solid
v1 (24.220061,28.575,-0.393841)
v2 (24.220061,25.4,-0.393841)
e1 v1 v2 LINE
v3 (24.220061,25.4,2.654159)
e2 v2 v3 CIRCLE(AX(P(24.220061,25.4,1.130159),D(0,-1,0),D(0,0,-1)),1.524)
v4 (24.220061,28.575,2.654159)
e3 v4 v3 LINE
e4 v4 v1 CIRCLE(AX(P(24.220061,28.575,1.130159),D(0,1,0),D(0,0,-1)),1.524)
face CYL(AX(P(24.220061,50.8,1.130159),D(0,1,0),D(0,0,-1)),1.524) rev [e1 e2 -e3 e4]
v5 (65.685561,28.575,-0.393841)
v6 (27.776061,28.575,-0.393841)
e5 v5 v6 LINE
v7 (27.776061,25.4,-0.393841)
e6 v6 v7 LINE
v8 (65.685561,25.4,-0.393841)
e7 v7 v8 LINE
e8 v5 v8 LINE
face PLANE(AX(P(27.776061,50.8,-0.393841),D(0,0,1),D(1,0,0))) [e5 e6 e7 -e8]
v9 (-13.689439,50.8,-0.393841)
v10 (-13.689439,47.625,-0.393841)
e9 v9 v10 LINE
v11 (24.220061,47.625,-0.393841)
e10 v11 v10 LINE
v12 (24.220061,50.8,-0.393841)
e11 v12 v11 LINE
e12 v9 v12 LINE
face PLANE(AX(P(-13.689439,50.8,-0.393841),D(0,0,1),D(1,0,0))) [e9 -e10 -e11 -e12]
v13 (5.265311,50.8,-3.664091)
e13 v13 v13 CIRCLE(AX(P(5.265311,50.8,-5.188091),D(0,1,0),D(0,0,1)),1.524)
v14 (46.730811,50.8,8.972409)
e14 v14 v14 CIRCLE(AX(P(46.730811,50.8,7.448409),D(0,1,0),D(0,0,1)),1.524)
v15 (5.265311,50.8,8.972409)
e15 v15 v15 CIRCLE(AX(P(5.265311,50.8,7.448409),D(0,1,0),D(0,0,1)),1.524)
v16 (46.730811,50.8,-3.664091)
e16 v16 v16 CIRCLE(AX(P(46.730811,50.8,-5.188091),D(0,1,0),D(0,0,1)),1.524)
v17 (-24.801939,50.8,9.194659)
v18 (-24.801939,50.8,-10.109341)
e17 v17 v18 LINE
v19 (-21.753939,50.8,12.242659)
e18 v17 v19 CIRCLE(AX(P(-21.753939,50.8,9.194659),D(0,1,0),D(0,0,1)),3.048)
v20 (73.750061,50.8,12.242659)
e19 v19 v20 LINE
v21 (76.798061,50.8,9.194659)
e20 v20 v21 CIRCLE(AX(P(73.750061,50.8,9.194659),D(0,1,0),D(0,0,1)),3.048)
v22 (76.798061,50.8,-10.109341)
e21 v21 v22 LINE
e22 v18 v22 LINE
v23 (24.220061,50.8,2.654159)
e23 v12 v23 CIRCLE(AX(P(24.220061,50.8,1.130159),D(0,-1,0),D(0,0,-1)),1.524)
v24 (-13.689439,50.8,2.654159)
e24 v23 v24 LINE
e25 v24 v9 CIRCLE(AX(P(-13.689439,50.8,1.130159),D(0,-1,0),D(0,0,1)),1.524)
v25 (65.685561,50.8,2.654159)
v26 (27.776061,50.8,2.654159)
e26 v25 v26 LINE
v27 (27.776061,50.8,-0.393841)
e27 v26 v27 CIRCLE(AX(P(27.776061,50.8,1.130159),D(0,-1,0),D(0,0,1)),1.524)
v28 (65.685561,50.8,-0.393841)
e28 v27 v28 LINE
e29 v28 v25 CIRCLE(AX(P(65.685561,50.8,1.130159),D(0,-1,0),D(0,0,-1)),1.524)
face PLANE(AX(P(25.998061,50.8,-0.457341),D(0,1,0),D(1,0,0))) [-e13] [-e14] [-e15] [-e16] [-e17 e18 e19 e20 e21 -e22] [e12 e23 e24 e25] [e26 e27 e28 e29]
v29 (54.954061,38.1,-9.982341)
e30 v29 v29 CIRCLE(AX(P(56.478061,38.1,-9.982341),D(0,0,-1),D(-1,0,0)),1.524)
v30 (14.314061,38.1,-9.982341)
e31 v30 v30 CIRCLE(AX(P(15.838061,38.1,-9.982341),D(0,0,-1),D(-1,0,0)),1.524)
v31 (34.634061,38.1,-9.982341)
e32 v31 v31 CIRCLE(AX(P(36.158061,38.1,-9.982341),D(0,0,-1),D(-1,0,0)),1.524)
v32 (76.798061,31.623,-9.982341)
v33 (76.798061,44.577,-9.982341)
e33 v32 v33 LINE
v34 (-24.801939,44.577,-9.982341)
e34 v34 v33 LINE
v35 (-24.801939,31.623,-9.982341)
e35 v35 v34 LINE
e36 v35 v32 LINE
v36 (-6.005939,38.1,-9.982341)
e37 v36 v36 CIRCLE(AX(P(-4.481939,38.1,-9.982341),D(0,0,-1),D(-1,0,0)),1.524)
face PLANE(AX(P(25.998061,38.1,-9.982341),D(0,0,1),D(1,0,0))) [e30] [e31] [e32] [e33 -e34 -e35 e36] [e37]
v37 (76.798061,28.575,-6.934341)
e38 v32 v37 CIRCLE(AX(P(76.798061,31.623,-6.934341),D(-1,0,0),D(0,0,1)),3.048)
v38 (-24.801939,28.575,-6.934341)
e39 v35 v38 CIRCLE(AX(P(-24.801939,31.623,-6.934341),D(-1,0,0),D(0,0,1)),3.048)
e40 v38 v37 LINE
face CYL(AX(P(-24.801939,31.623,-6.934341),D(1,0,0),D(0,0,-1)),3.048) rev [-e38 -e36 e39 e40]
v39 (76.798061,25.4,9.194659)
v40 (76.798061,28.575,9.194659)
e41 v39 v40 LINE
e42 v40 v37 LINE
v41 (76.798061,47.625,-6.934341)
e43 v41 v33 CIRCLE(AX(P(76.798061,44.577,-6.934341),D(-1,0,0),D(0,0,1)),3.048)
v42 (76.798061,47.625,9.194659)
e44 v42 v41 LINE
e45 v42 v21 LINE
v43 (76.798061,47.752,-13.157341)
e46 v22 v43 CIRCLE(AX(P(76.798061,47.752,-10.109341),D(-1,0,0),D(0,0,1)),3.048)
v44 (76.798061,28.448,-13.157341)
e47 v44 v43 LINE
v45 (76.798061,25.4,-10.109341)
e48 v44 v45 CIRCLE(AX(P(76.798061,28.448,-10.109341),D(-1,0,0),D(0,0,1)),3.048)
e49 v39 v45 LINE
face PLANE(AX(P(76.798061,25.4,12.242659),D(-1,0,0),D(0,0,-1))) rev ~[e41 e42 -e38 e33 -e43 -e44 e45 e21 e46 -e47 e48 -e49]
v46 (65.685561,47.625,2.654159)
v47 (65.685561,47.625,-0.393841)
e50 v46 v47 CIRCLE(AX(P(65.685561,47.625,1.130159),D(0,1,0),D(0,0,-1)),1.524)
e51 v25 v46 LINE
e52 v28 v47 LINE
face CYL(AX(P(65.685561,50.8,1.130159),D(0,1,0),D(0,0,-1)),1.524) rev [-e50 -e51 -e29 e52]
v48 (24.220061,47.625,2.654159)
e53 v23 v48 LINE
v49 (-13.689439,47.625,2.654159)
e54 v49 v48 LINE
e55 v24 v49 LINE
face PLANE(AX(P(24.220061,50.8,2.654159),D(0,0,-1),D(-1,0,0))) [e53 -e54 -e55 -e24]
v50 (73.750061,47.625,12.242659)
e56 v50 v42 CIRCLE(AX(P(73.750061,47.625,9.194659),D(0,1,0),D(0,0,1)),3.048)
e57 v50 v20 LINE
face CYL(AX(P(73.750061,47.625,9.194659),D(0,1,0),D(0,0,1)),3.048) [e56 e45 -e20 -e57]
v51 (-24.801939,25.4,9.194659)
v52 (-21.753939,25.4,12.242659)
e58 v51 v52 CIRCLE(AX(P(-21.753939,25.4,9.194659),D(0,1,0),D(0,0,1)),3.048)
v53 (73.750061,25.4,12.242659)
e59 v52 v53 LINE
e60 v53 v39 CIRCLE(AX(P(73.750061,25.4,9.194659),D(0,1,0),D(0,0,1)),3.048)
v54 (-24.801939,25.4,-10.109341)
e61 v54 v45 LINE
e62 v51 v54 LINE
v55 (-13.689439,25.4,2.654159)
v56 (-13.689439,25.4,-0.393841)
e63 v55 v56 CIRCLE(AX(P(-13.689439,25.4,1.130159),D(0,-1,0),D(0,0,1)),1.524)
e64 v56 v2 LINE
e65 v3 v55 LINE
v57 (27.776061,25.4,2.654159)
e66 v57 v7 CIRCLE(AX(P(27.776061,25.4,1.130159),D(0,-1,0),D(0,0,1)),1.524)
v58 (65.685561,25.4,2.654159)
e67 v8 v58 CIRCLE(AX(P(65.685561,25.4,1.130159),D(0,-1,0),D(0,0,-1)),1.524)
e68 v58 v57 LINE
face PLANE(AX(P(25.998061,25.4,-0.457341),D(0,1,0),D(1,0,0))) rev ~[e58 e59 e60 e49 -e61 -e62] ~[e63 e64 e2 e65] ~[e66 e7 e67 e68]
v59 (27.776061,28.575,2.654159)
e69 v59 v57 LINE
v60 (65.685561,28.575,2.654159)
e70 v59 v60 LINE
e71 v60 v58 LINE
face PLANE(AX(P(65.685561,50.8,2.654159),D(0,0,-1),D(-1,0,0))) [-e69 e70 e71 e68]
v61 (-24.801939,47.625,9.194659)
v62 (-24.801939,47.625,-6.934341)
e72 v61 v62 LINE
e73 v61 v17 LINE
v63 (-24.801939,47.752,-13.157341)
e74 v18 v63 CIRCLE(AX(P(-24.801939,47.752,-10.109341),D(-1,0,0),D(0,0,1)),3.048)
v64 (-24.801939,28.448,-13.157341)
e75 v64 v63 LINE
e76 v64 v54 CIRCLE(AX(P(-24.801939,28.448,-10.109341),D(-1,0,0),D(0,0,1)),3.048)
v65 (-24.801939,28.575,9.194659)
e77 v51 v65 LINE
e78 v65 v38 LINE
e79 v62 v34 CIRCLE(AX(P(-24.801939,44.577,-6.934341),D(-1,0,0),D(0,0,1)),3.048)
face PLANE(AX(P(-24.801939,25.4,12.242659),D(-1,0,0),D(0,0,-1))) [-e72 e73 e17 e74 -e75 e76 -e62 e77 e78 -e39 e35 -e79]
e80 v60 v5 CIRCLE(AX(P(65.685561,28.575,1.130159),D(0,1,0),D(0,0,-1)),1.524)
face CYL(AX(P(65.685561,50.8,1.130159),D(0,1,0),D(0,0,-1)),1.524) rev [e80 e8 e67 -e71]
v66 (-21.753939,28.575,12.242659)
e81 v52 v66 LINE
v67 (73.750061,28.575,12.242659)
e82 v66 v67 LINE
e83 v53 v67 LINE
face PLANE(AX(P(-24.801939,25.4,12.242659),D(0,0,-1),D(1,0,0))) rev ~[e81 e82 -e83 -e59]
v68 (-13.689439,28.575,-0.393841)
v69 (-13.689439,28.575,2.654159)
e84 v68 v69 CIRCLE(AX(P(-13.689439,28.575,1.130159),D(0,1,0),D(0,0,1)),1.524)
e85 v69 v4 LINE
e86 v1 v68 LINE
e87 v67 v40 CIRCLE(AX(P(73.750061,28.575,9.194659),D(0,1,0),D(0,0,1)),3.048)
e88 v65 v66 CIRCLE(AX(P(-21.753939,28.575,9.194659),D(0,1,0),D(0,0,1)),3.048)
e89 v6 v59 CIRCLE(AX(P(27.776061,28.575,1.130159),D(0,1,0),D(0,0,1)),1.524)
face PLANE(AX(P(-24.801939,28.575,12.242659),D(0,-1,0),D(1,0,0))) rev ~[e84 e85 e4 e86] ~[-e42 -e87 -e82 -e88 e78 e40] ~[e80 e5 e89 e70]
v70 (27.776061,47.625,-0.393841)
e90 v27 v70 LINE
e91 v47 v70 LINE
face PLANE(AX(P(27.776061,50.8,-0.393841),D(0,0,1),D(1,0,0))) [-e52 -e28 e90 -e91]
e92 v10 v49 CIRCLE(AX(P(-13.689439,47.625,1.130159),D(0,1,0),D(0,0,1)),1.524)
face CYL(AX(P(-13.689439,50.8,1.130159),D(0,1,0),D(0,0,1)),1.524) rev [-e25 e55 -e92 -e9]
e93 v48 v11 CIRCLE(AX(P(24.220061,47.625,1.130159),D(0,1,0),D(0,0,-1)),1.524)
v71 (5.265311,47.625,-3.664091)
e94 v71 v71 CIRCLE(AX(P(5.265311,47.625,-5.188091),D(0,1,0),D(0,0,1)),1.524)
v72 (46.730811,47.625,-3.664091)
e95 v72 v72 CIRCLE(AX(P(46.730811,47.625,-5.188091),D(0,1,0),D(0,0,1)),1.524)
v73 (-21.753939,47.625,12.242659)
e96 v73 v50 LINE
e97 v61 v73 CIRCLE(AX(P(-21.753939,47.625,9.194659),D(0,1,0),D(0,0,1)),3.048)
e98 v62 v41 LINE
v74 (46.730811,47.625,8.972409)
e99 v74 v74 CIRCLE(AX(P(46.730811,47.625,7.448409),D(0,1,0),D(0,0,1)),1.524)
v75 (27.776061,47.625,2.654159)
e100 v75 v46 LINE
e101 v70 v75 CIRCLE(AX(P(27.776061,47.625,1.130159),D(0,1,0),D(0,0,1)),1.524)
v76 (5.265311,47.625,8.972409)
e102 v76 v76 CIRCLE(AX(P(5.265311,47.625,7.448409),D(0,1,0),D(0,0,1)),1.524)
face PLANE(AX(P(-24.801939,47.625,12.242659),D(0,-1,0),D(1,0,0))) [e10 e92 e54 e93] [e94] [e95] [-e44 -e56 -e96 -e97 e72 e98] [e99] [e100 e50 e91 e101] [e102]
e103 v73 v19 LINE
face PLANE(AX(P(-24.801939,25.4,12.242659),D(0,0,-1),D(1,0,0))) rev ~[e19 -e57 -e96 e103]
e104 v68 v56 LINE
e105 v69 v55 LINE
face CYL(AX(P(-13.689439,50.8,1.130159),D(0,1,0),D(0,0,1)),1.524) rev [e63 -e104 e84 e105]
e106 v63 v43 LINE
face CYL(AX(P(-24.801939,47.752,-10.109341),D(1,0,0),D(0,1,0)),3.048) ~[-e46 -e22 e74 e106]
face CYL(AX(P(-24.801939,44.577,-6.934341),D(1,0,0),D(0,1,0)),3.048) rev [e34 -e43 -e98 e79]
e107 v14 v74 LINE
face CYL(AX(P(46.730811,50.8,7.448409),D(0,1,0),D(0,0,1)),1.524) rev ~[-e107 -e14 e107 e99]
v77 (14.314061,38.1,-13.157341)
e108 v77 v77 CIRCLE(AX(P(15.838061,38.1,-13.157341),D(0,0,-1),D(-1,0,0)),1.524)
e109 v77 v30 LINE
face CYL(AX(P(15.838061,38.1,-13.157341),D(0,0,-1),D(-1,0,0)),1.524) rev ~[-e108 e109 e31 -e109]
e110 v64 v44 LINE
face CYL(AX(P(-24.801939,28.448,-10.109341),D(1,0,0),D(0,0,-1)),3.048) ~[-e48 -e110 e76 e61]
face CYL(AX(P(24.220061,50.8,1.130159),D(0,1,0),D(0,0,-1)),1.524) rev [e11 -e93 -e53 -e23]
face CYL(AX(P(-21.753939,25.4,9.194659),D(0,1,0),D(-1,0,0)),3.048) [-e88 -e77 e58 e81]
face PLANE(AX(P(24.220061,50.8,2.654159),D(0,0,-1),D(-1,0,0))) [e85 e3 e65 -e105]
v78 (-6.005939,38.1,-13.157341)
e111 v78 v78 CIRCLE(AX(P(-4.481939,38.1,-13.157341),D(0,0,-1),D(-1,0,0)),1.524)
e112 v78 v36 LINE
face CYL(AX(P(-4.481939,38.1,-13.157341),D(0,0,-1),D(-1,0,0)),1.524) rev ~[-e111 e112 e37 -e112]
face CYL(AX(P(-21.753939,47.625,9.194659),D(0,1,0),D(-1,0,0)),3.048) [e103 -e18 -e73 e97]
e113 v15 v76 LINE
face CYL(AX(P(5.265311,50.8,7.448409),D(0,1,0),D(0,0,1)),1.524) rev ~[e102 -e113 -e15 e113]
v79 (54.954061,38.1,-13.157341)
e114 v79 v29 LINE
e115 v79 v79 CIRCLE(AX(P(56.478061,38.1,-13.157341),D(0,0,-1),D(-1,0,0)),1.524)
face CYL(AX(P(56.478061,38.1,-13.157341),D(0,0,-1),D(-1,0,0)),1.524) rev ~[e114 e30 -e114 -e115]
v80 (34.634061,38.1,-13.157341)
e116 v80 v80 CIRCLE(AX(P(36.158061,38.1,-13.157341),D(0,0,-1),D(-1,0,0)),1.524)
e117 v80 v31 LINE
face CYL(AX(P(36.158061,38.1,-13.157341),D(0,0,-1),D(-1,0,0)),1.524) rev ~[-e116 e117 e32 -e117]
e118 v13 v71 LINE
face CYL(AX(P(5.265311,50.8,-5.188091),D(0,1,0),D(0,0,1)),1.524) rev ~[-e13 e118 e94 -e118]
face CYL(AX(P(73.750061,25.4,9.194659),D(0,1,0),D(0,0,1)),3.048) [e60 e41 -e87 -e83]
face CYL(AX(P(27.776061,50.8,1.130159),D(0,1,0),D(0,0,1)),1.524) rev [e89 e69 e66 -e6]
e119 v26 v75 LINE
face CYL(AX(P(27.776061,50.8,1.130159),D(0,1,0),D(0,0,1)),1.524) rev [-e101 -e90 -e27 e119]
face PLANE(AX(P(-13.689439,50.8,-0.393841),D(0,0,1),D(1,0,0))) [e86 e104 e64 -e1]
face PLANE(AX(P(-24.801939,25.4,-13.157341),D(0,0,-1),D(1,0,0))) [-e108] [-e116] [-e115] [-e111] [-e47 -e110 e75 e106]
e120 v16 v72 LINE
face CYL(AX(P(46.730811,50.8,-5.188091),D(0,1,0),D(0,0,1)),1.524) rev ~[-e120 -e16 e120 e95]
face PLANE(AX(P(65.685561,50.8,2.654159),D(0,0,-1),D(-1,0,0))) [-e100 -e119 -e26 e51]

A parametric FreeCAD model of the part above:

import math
import FreeCAD as App
import Part
import Sketcher

V = App.Vector
Q = App.Units.Quantity


def edges_at(feature, points):
    """Names of the edges that pass closest to the given points."""
    edges = feature.Shape.Edges
    near = lambda p: min(range(len(edges)), key=lambda i: edges[i].distToShape(Part.Vertex(*p))[0])
    return sorted({f"Edge{near(p) + 1}" for p in points})

doc = App.newDocument("Part")
body = doc.addObject("PartDesign::Body", "Body")

# Sketch on XZ plane
sketch1 = body.newObject("Sketcher::SketchObject", "Sketch")
sketch1.AttachmentSupport = (doc.getObject("XZ_Plane"), [""])
sketch1.MapMode = "FlatFace"
sketch1.AttachmentOffset = App.Placement(V(0, 0, -1 * 25.4), App.Rotation())
sketch1.addGeometry(Part.LineSegment(V(-24.801939, -13.157341, 0), V(-24.801939, 12.242659, 0)), False)
sketch1.addGeometry(Part.LineSegment(V(-24.801939, 12.242659, 0), V(76.798061, 12.242659, 0)), False)
sketch1.addGeometry(Part.LineSegment(V(76.798061, 12.242659, 0), V(76.798061, -13.157341, 0)), False)
sketch1.addGeometry(Part.LineSegment(V(76.798061, -13.157341, 0), V(-24.801939, -13.157341, 0)), False)
sketch1.addConstraint(Sketcher.Constraint("Coincident", 0, 2, 1, 1))
sketch1.addConstraint(Sketcher.Constraint("Coincident", 1, 2, 2, 1))
sketch1.addConstraint(Sketcher.Constraint("Coincident", 2, 2, 3, 1))
sketch1.addConstraint(Sketcher.Constraint("Coincident", 3, 2, 0, 1))
sketch1.addConstraint(Sketcher.Constraint("Vertical", 0))
sketch1.addConstraint(Sketcher.Constraint("Horizontal", 1))
sketch1.addConstraint(Sketcher.Constraint("Vertical", 2))
sketch1.addConstraint(Sketcher.Constraint("Horizontal", 3))
sketch1.addConstraint(Sketcher.Constraint("DistanceX", 1, 1, 1, 2, Q("4 in")))
sketch1.addConstraint(Sketcher.Constraint("DistanceY", 0, 1, 0, 2, Q("1 in")))
sketch1.addConstraint(Sketcher.Constraint("DistanceX", 0, 2, -1, 1, 24.801939))
sketch1.addConstraint(Sketcher.Constraint("DistanceY", -1, 1, 0, 2, 12.242659))
pad1 = body.newObject("PartDesign::Pad", "Pad")
pad1.Profile = sketch1
pad1.Length = Q("1 in")
pad1.Reversed = True

# Sketch on XY plane
sketch2 = body.newObject("Sketcher::SketchObject", "Sketch001")
sketch2.AttachmentSupport = (doc.getObject("XY_Plane"), [""])
sketch2.MapMode = "FlatFace"
sketch2.AttachmentOffset = App.Placement(V(0, 0, 12.242659), App.Rotation())
sketch2.addGeometry(Part.LineSegment(V(-24.801939, 47.625, 0), V(-24.801939, 28.575, 0)), False)
sketch2.addGeometry(Part.LineSegment(V(-24.801939, 28.575, 0), V(76.798061, 28.575, 0)), False)
sketch2.addGeometry(Part.LineSegment(V(76.798061, 28.575, 0), V(76.798061, 47.625, 0)), False)
sketch2.addGeometry(Part.LineSegment(V(76.798061, 47.625, 0), V(-24.801939, 47.625, 0)), False)
sketch2.addConstraint(Sketcher.Constraint("Coincident", 0, 2, 1, 1))
sketch2.addConstraint(Sketcher.Constraint("Coincident", 1, 2, 2, 1))
sketch2.addConstraint(Sketcher.Constraint("Coincident", 2, 2, 3, 1))
sketch2.addConstraint(Sketcher.Constraint("Coincident", 3, 2, 0, 1))
sketch2.addConstraint(Sketcher.Constraint("Vertical", 0))
sketch2.addConstraint(Sketcher.Constraint("Horizontal", 1))
sketch2.addConstraint(Sketcher.Constraint("Vertical", 2))
sketch2.addConstraint(Sketcher.Constraint("Horizontal", 3))
sketch2.addConstraint(Sketcher.Constraint("DistanceX", 1, 1, 1, 2, Q("4 in")))
sketch2.addConstraint(Sketcher.Constraint("DistanceY", 0, 2, 0, 1, Q("0.75 in")))
sketch2.addConstraint(Sketcher.Constraint("DistanceY", -1, 1, 0, 2, Q("1.125 in")))
sketch2.addConstraint(Sketcher.Constraint("DistanceX", 0, 2, -1, 1, 24.801939))
pocket1 = body.newObject("PartDesign::Pocket", "Pocket")
pocket1.Profile = sketch2
pocket1.Length = Q("0.875 in")

# Sketch on XZ plane
sketch3 = body.newObject("Sketcher::SketchObject", "Sketch002")
sketch3.AttachmentSupport = (doc.getObject("XZ_Plane"), [""])
sketch3.MapMode = "FlatFace"
sketch3.AttachmentOffset = App.Placement(V(0, 0, -2 * 25.4), App.Rotation())
sketch3.addGeometry(Part.LineSegment(V(24.220061, -0.393841, 0), V(-13.689439, -0.393841, 0)), False)
sketch3.addGeometry(Part.ArcOfCircle(Part.Circle(V(-13.689439, 1.130159, 0), V(0, 0, 1), 1.524), math.radians(90), math.radians(270)), False)
sketch3.addGeometry(Part.LineSegment(V(-13.689439, 2.654159, 0), V(24.220061, 2.654159, 0)), False)
sketch3.addGeometry(Part.ArcOfCircle(Part.Circle(V(24.220061, 1.130159, 0), V(0, 0, 1), 1.524), math.radians(-90), math.radians(90)), False)
sketch3.addConstraint(Sketcher.Constraint("Tangent", 0, 2, 1, 2))
sketch3.addConstraint(Sketcher.Constraint("Tangent", 1, 1, 2, 1))
sketch3.addConstraint(Sketcher.Constraint("Tangent", 2, 2, 3, 2))
sketch3.addConstraint(Sketcher.Constraint("Tangent", 3, 1, 0, 1))
sketch3.addConstraint(Sketcher.Constraint("Horizontal", 0))
sketch3.addConstraint(Sketcher.Constraint("Horizontal", 2))
sketch3.addConstraint(Sketcher.Constraint("Radius", 1, Q("0.06 in")))
sketch3.addConstraint(Sketcher.Constraint("DistanceX", 0, 2, 0, 1, Q("1.4925 in")))
sketch3.addConstraint(Sketcher.Constraint("DistanceX", 1, 3, -1, 1, 13.689439))
sketch3.addConstraint(Sketcher.Constraint("DistanceY", -1, 1, 1, 3, 1.130159))
pocket2 = body.newObject("PartDesign::Pocket", "Pocket001")
pocket2.Profile = sketch3
pocket2.Length = Q("1 in")
pocket2.Reversed = True

# Sketch on XZ plane
sketch4 = body.newObject("Sketcher::SketchObject", "Sketch003")
sketch4.AttachmentSupport = (doc.getObject("XZ_Plane"), [""])
sketch4.MapMode = "FlatFace"
sketch4.AttachmentOffset = App.Placement(V(0, 0, -2 * 25.4), App.Rotation())
sketch4.addGeometry(Part.LineSegment(V(65.685561, -0.393841, 0), V(27.776061, -0.393841, 0)), False)
sketch4.addGeometry(Part.ArcOfCircle(Part.Circle(V(27.776061, 1.130159, 0), V(0, 0, 1), 1.524), math.radians(90), math.radians(270)), False)
sketch4.addGeometry(Part.LineSegment(V(27.776061, 2.654159, 0), V(65.685561, 2.654159, 0)), False)
sketch4.addGeometry(Part.ArcOfCircle(Part.Circle(V(65.685561, 1.130159, 0), V(0, 0, 1), 1.524), math.radians(-90), math.radians(90)), False)
sketch4.addConstraint(Sketcher.Constraint("Tangent", 0, 2, 1, 2))
sketch4.addConstraint(Sketcher.Constraint("Tangent", 1, 1, 2, 1))
sketch4.addConstraint(Sketcher.Constraint("Tangent", 2, 2, 3, 2))
sketch4.addConstraint(Sketcher.Constraint("Tangent", 3, 1, 0, 1))
sketch4.addConstraint(Sketcher.Constraint("Horizontal", 0))
sketch4.addConstraint(Sketcher.Constraint("Horizontal", 2))
sketch4.addConstraint(Sketcher.Constraint("Radius", 1, Q("0.06 in")))
sketch4.addConstraint(Sketcher.Constraint("DistanceX", 0, 2, 0, 1, Q("1.4925 in")))
sketch4.addConstraint(Sketcher.Constraint("DistanceX", -1, 1, 1, 3, 27.776061))
sketch4.addConstraint(Sketcher.Constraint("DistanceY", -1, 1, 1, 3, 1.130159))
pocket3 = body.newObject("PartDesign::Pocket", "Pocket002")
pocket3.Profile = sketch4
pocket3.Length = Q("1 in")
pocket3.Reversed = True

# Sketch on XZ plane
sketch5 = body.newObject("Sketcher::SketchObject", "Sketch004")
sketch5.AttachmentSupport = (doc.getObject("XZ_Plane"), [""])
sketch5.MapMode = "FlatFace"
sketch5.AttachmentOffset = App.Placement(V(0, 0, -2 * 25.4), App.Rotation())
sketch5.addGeometry(Part.Circle(V(5.265311, 7.448409, 0), V(0, 0, 1), 1.524), False)
sketch5.addGeometry(Part.Circle(V(5.265311, -5.188091, 0), V(0, 0, 1), 1.524), False)
sketch5.addGeometry(Part.Circle(V(46.730811, -5.188091, 0), V(0, 0, 1), 1.524), False)
sketch5.addGeometry(Part.Circle(V(46.730811, 7.448409, 0), V(0, 0, 1), 1.524), False)
sketch5.addConstraint(Sketcher.Constraint("Equal", 0, 1))
sketch5.addConstraint(Sketcher.Constraint("Equal", 1, 2))
sketch5.addConstraint(Sketcher.Constraint("Equal", 2, 3))
sketch5.addConstraint(Sketcher.Constraint("Horizontal", 1, 3, 2, 3))
sketch5.addConstraint(Sketcher.Constraint("Horizontal", 0, 3, 3, 3))
sketch5.addConstraint(Sketcher.Constraint("Vertical", 0, 3, 1, 3))
sketch5.addConstraint(Sketcher.Constraint("Vertical", 2, 3, 3, 3))
sketch5.addConstraint(Sketcher.Constraint("Diameter", 0, Q("0.12 in")))
sketch5.addConstraint(Sketcher.Constraint("DistanceY", 1, 3, 0, 3, Q("0.4975 in")))
sketch5.addConstraint(Sketcher.Constraint("DistanceX", 1, 3, 2, 3, Q("1.6325 in")))
sketch5.addConstraint(Sketcher.Constraint("DistanceX", -1, 1, 0, 3, 5.265311))
sketch5.addConstraint(Sketcher.Constraint("DistanceY", -1, 1, 0, 3, 7.448409))
pocket4 = body.newObject("PartDesign::Pocket", "Pocket003")
pocket4.Profile = sketch5
pocket4.Length = Q("0.125 in")
pocket4.Reversed = True

# Sketch on XY plane
sketch6 = body.newObject("Sketcher::SketchObject", "Sketch005")
sketch6.AttachmentSupport = (doc.getObject("XY_Plane"), [""])
sketch6.MapMode = "FlatFace"
sketch6.AttachmentOffset = App.Placement(V(0, 0, -13.157341), App.Rotation())
sketch6.addGeometry(Part.Circle(V(56.478061, 38.1, 0), V(0, 0, 1), 1.524), False)
sketch6.addGeometry(Part.Circle(V(36.158061, 38.1, 0), V(0, 0, 1), 1.524), False)
sketch6.addGeometry(Part.Circle(V(15.838061, 38.1, 0), V(0, 0, 1), 1.524), False)
sketch6.addGeometry(Part.Circle(V(-4.481939, 38.1, 0), V(0, 0, 1), 1.524), False)
sketch6.addConstraint(Sketcher.Constraint("Equal", 0, 1))
sketch6.addConstraint(Sketcher.Constraint("Equal", 1, 2))
sketch6.addConstraint(Sketcher.Constraint("Equal", 2, 3))
sketch6.addConstraint(Sketcher.Constraint("Horizontal", 0, 3, 1, 3))
sketch6.addConstraint(Sketcher.Constraint("Horizontal", 1, 3, 2, 3))
sketch6.addConstraint(Sketcher.Constraint("Horizontal", 2, 3, 3, 3))
sketch6.addConstraint(Sketcher.Constraint("Diameter", 0, Q("0.12 in")))
sketch6.addConstraint(Sketcher.Constraint("DistanceY", -1, 1, 0, 3, Q("1.5 in")))
sketch6.addConstraint(Sketcher.Constraint("DistanceX", 1, 3, 0, 3, Q("0.8 in")))
sketch6.addConstraint(Sketcher.Constraint("DistanceX", 2, 3, 1, 3, Q("0.8 in")))
sketch6.addConstraint(Sketcher.Constraint("DistanceX", 3, 3, 2, 3, Q("0.8 in")))
sketch6.addConstraint(Sketcher.Constraint("DistanceX", -1, 1, 0, 3, 56.478061))
pocket5 = body.newObject("PartDesign::Pocket", "Pocket004")
pocket5.Profile = sketch6
pocket5.Length = Q("0.125 in")
pocket5.Reversed = True
doc.recompute()

fillet = body.newObject("PartDesign::Fillet", "Fillet")
fillet.Base = (pocket5, edges_at(pocket5, [(25.998, 47.625, -9.982), (25.998, 28.575, -9.982)]))
fillet.Radius = Q("0.12 in")
doc.recompute()

fillet2 = body.newObject("PartDesign::Fillet", "Fillet001")
fillet2.Base = (fillet, edges_at(fillet, [(25.998, 50.8, -13.157), (25.998, 25.4, -13.157)]))
fillet2.Radius = Q("0.12 in")
doc.recompute()

fillet3 = body.newObject("PartDesign::Fillet", "Fillet002")
fillet3.Base = (fillet2, edges_at(fillet2, [
    (76.798, 26.988, 12.243),
    (-24.802, 26.988, 12.243),
    (76.798, 49.212, 12.243),
    (-24.802, 49.212, 12.243),
]))
fillet3.Radius = Q("0.12 in")

doc.recompute()
